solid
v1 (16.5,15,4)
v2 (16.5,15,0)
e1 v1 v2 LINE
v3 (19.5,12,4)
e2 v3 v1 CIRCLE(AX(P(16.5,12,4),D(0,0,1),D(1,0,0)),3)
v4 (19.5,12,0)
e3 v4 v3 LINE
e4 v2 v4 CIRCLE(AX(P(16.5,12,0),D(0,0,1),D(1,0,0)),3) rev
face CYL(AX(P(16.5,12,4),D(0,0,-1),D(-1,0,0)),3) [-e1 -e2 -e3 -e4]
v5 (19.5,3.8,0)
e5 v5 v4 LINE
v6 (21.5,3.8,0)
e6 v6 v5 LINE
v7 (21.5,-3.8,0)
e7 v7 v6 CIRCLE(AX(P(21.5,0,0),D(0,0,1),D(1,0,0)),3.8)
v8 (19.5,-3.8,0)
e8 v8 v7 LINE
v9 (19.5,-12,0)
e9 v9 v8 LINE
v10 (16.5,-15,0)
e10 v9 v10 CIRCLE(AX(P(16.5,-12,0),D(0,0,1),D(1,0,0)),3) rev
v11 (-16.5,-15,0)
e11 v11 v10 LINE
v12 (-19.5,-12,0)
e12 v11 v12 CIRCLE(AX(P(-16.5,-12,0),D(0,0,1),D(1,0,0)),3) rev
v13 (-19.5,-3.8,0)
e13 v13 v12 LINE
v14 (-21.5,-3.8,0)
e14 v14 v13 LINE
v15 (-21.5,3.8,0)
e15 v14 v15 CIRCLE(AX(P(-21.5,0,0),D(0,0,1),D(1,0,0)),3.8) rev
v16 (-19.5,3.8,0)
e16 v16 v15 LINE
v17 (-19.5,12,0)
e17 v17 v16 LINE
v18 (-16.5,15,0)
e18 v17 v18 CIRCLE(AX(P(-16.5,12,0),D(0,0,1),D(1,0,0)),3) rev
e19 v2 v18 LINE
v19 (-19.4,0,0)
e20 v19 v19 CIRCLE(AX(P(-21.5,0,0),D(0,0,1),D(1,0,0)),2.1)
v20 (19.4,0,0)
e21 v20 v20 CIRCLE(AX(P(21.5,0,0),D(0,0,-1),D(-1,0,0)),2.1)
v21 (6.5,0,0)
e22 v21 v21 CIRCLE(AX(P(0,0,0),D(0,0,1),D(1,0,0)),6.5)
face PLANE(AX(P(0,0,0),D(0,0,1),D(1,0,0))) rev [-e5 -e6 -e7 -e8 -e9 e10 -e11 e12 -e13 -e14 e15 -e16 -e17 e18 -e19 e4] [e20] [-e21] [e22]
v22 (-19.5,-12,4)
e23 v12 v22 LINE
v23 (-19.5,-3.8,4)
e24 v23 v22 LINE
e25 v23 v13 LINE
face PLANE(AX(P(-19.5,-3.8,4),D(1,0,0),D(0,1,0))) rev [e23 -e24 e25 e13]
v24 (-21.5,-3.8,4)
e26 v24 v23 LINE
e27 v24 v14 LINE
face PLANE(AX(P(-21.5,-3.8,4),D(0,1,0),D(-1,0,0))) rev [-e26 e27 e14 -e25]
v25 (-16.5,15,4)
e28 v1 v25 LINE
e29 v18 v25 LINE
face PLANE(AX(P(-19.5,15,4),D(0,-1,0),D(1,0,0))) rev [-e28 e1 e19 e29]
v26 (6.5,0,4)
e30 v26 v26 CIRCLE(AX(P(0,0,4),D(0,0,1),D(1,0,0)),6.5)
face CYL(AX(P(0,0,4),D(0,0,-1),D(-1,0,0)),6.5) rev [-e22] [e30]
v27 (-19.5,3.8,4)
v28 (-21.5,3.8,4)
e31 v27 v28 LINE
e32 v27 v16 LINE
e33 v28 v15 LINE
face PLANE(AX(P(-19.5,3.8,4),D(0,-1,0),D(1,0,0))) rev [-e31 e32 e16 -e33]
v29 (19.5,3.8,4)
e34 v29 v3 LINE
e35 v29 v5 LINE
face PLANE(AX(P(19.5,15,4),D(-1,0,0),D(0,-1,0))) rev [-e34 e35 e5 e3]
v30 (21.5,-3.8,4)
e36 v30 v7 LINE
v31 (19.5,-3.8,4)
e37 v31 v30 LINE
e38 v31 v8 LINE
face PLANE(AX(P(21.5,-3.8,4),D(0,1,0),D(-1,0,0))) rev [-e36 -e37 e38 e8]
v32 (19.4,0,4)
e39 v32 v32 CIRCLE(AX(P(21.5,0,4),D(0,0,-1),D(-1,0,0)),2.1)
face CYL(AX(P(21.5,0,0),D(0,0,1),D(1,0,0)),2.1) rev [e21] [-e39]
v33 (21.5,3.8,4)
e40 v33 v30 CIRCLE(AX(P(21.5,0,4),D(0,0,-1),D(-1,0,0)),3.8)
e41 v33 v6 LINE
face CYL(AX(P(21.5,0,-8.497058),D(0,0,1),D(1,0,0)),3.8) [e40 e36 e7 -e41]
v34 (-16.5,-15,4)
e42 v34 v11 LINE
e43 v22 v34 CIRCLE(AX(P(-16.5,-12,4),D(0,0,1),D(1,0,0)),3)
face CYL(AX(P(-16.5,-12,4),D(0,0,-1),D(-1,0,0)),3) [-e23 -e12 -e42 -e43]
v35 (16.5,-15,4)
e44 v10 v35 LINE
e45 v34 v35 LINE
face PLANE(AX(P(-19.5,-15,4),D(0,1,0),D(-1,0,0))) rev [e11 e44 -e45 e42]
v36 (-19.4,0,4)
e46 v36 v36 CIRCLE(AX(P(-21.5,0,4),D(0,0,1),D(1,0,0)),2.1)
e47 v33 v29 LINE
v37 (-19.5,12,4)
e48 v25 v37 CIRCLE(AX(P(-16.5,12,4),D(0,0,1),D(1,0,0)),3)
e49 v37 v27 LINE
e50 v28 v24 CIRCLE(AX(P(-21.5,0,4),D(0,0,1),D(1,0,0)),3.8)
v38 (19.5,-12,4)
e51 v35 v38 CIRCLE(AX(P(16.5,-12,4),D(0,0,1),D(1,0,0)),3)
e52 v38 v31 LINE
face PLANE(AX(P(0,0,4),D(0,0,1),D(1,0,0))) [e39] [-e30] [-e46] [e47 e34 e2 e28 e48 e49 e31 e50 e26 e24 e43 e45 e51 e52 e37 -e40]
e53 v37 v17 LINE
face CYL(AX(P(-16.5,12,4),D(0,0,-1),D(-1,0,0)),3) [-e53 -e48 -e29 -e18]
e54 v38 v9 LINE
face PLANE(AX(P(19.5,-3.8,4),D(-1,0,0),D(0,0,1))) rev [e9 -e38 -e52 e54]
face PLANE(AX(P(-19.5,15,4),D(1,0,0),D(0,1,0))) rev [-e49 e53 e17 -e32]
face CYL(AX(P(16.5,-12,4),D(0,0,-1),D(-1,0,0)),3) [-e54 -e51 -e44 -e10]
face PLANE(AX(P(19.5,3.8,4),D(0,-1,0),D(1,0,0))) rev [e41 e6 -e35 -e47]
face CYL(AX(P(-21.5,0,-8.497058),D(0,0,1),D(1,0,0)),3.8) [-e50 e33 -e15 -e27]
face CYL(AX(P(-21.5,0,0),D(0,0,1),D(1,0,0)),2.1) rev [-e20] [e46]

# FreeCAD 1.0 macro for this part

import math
import FreeCAD as App
import Part
import Sketcher
Q = App.Units.Quantity


def edges_at(feature, points):
    """Names of the edges that pass closest to the given points."""
    edges = feature.Shape.Edges
    near = lambda p: min(range(len(edges)), key=lambda i: edges[i].distToShape(Part.Vertex(*p))[0])
    return sorted({f"Edge{near(p) + 1}" for p in points})


def add_polygon(sketch, points):
    """Adds a closed chain of lines whose ends are joined by coincident constraints."""
    first, n = sketch.GeometryCount, len(points)
    for a, b in zip(points, points[1:] + points[:1]):
        sketch.addGeometry(Part.LineSegment(App.Vector(*a, 0), App.Vector(*b, 0)), False)
    for i in range(n):
        sketch.addConstraint(Sketcher.Constraint("Coincident", first + i, 2, first + (i + 1) % n, 1))

doc = App.newDocument("Part")
params = doc.addObject("Spreadsheet::Sheet", "Params")
for row, (alias, value) in enumerate([
    ("sketch1_diameter", "13 mm"),
    ("sketch1_width", "2 mm"),
    ("sketch1_width2", "39 mm"),
    ("sketch1_height", "11.2 mm"),
    ("sketch1_height2", "7.6 mm"),
    ("pad1_length", "4 mm"),
    ("sketch2_radius", "3.8 mm"),
    ("pad2_length", "4 mm"),
    ("sketch3_diameter", "4.2 mm"),
    ("fillet_radius", "3 mm"),
], start=1):
    params.set(f"A{row}", alias)
    params.set(f"B{row}", "=" + value)
    params.setAlias(f"B{row}", alias)

body = doc.addObject("PartDesign::Body", "Body")

# Sketch on XY plane
sketch1 = doc.addObject("Sketcher::SketchObject", "Sketch")
body.addObject(sketch1)
sketch1.AttachmentSupport = (doc.XY_Plane, [""])
sketch1.MapMode = "FlatFace"
add_polygon(sketch1, [(21.5, 3.8), (19.5, 3.8), (19.5, 15), (-19.5, 15), (-19.5, 3.8), (-21.5, 3.8), (-21.5, -3.8), (-19.5, -3.8), (-19.5, -15), (19.5, -15), (19.5, -3.8), (21.5, -3.8)])  # lines 0-11
sketch1.addGeometry(Part.Circle(App.Vector(0, 0, 0), App.Vector(0, 0, 1), 6.5), False)  # 12
sketch1.addConstraint([
    Sketcher.Constraint("Horizontal", 0),
    Sketcher.Constraint("Vertical", 1),
    Sketcher.Constraint("Horizontal", 2),
    Sketcher.Constraint("Vertical", 3),
    Sketcher.Constraint("Horizontal", 4),
    Sketcher.Constraint("Vertical", 5),
    Sketcher.Constraint("Horizontal", 6),
    Sketcher.Constraint("Vertical", 7),
    Sketcher.Constraint("Horizontal", 8),
    Sketcher.Constraint("Vertical", 9),
    Sketcher.Constraint("Horizontal", 10),
    Sketcher.Constraint("Vertical", 11),
    Sketcher.Constraint("Coincident", 12, 3, -1, 1),
    Sketcher.Constraint("Symmetric", 0, 2, 6, 2, -1, 1),
    Sketcher.Constraint("Symmetric", 2, 2, 8, 2, -1, 1),
    Sketcher.Constraint("Symmetric", 4, 2, 10, 2, -1, 1),
    Sketcher.Constraint("Symmetric", 0, 2, 3, 2, -2),
    Sketcher.Constraint("Diameter", 12, Q("13 mm")),
    Sketcher.Constraint("DistanceX", 0, 2, 0, 1, Q("2 mm")),
    Sketcher.Constraint("DistanceX", 2, 2, 2, 1, Q("39 mm")),
    Sketcher.Constraint("DistanceY", 1, 1, 1, 2, Q("11.2 mm")),
    Sketcher.Constraint("DistanceY", 5, 2, 5, 1, Q("7.6 mm")),
])
sketch1.setExpression("Constraints[29]", "Params.sketch1_diameter")
sketch1.setExpression("Constraints[30]", "Params.sketch1_width")
sketch1.setExpression("Constraints[31]", "Params.sketch1_width2")
sketch1.setExpression("Constraints[32]", "Params.sketch1_height")
sketch1.setExpression("Constraints[33]", "Params.sketch1_height2")
pad1 = doc.addObject("PartDesign::Pad", "Pad")
body.addObject(pad1)
pad1.Profile = sketch1
pad1.setExpression("Length", "Params.pad1_length")

# Sketch on XY plane
sketch2 = doc.addObject("Sketcher::SketchObject", "Sketch001")
body.addObject(sketch2)
sketch2.AttachmentSupport = (doc.XY_Plane, [""])
sketch2.MapMode = "FlatFace"
sketch2.AttachmentOffset = App.Placement(App.Vector(0, 0, 4), App.Rotation())
sketch2.addGeometry([
    Part.LineSegment(App.Vector(-21.5, -3.8, 0), App.Vector(-21.5, 3.8, 0)),
    Part.ArcOfCircle(Part.Circle(App.Vector(-21.5, 0, 0), App.Vector(0, 0, 1), 3.8), math.radians(90), math.radians(270)),
], False)
sketch2.addConstraint([
    Sketcher.Constraint("Coincident", 0, 1, 1, 2),
    Sketcher.Constraint("Coincident", 1, 1, 0, 2),
    Sketcher.Constraint("Vertical", 0),
    Sketcher.Constraint("PointOnObject", 1, 3, -1),
    Sketcher.Constraint("Vertical", 1, 3, 0, 1),
    Sketcher.Constraint("Radius", 1, Q("3.8 mm")),
    Sketcher.Constraint("DistanceX", 1, 3, -1, 1, Q("21.5 mm")),
])
sketch2.setExpression("Constraints[5]", "Params.sketch2_radius")
pad2 = doc.addObject("PartDesign::Pad", "Pad001")
body.addObject(pad2)
pad2.Profile = sketch2
pad2.setExpression("Length", "Params.pad2_length")
pad2.Reversed = True

# Sketch on XY plane
sketch3 = doc.addObject("Sketcher::SketchObject", "Sketch002")
body.addObject(sketch3)
sketch3.AttachmentSupport = (doc.XY_Plane, [""])
sketch3.MapMode = "FlatFace"
sketch3.AttachmentOffset = App.Placement(App.Vector(0, 0, 4), App.Rotation())
sketch3.addGeometry(Part.Circle(App.Vector(-21.5, 0, 0), App.Vector(0, 0, 1), 2.1), False)
sketch3.addConstraint([
    Sketcher.Constraint("PointOnObject", 0, 3, -1),
    Sketcher.Constraint("Diameter", 0, Q("4.2 mm")),
    Sketcher.Constraint("DistanceX", 0, 3, -1, 1, Q("21.5 mm")),
])
sketch3.setExpression("Constraints[1]", "Params.sketch3_diameter")
pocket1 = doc.addObject("PartDesign::Pocket", "Pocket")
body.addObject(pocket1)
pocket1.Profile = sketch3
pocket1.Type = "ThroughAll"
doc.recompute()

mirrored = doc.addObject("PartDesign::Mirrored", "Mirrored")
body.addObject(mirrored)
mirrored.Originals = [pad2, pocket1]
mirrored.MirrorPlane = (doc.YZ_Plane, [""])
body.Tip = mirrored
doc.recompute()

fillet = doc.addObject("PartDesign::Fillet", "Fillet")
body.addObject(fillet)
fillet.Base = (mirrored, edges_at(mirrored, [
    (19.5, -15, 2),
    (-19.5, -15, 2),
    (-19.5, 15, 2),
    (19.5, 15, 2),
]))
fillet.setExpression("Radius", "Params.fillet_radius")

doc.recompute()
